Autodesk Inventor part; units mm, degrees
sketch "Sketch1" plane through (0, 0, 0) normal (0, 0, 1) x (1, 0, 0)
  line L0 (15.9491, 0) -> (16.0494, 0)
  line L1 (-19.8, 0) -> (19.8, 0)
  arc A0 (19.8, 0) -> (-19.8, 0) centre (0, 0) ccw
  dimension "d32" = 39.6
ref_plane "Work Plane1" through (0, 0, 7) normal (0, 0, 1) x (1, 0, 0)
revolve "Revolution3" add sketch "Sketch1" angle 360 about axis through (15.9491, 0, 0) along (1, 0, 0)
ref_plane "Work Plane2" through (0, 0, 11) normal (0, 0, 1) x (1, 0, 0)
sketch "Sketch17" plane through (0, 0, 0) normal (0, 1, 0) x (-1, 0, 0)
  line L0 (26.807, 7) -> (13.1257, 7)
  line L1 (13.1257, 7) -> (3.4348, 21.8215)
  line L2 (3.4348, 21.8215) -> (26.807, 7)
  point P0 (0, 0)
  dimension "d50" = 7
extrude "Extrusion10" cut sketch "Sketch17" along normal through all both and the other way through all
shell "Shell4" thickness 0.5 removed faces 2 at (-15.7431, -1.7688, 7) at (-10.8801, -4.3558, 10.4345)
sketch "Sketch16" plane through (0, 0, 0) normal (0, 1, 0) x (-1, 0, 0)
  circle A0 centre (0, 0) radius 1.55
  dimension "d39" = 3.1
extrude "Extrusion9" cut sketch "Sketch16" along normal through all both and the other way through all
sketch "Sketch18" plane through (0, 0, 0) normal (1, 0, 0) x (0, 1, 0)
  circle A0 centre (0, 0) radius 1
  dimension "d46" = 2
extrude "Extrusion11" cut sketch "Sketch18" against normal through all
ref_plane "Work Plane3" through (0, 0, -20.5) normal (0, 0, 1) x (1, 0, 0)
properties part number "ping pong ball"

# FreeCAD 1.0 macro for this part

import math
import FreeCAD as App
import Part
import Sketcher
Q = App.Units.Quantity


def faces_at(feature, points):
    """Names of the faces that lie closest to the given points."""
    faces = feature.Shape.Faces
    near = lambda p: min(range(len(faces)), key=lambda i: faces[i].distToShape(Part.Vertex(*p))[0])
    return sorted({f"Face{near(p) + 1}" for p in points})


def add_polygon(sketch, points):
    """Adds a closed chain of lines whose ends are joined by coincident constraints."""
    first, n = sketch.GeometryCount, len(points)
    for a, b in zip(points, points[1:] + points[:1]):
        sketch.addGeometry(Part.LineSegment(App.Vector(*a, 0), App.Vector(*b, 0)), False)
    for i in range(n):
        sketch.addConstraint(Sketcher.Constraint("Coincident", first + i, 2, first + (i + 1) % n, 1))

doc = App.newDocument("Part")
body = doc.addObject("PartDesign::Body", "Body")

# Sketch on XY plane
sketch1 = doc.addObject("Sketcher::SketchObject", "Sketch")
body.addObject(sketch1)
sketch1.AttachmentSupport = (doc.XY_Plane, [""])
sketch1.MapMode = "FlatFace"
sketch1.addGeometry([
    Part.LineSegment(App.Vector(-20, 0, 0), App.Vector(20, 0, 0)),
    Part.ArcOfCircle(Part.Circle(App.Vector(0, 0, 0), App.Vector(0, 0, 1), 20), math.radians(0), math.radians(180)),
], False)
sketch1.addConstraint([
    Sketcher.Constraint("Coincident", 0, 1, 1, 2),
    Sketcher.Constraint("Coincident", 1, 1, 0, 2),
    Sketcher.Constraint("Horizontal", 0),
    Sketcher.Constraint("Coincident", 1, 3, -1, 1),
    Sketcher.Constraint("PointOnObject", 0, 1, -1),
    Sketcher.Constraint("Radius", 1, Q("19.8 mm")),
])
revolution = doc.addObject("PartDesign::Revolution", "Revolution")
body.addObject(revolution)
revolution.Profile = sketch1
revolution.ReferenceAxis = (sketch1, ["H_Axis"])
revolution.Angle = 360

# Sketch on XZ plane
sketch2 = doc.addObject("Sketcher::SketchObject", "Sketch001")
body.addObject(sketch2)
sketch2.AttachmentSupport = (doc.XZ_Plane, [""])
sketch2.MapMode = "FlatFace"
add_polygon(sketch2, [(-13, 7), (-27, 7), (-3, 22)])  # lines 0-2
sketch2.addConstraint([
    Sketcher.Constraint("Horizontal", 0),
    Sketcher.Constraint("DistanceY", -1, 1, 0, 2, Q("7 mm")),
    Sketcher.Constraint("Angle", 1, Q("32.3809 deg")),
    Sketcher.Constraint("DistanceX", 0, 2, 0, 1, Q("13.6813 mm")),
    Sketcher.Constraint("DistanceX", 0, 2, -1, 1, Q("26.807 mm")),
    Sketcher.Constraint("DistanceX", 2, 2, 1, 2, Q("9.691 mm")),
])
pocket1 = doc.addObject("PartDesign::Pocket", "Pocket")
body.addObject(pocket1)
pocket1.Profile = sketch2
pocket1.Type = "ThroughAll"
pocket1.Midplane = True
doc.recompute()

thickness = doc.addObject("PartDesign::Thickness", "Thickness")
body.addObject(thickness)
thickness.Base = (pocket1, faces_at(pocket1, [(-15.743, -1.769, 7), (-10.88, -4.356, 10.434)]))
thickness.Value = 0.5
thickness.Reversed = True
thickness.Join = "Intersection"

# Sketch on XZ plane
sketch3 = doc.addObject("Sketcher::SketchObject", "Sketch002")
body.addObject(sketch3)
sketch3.AttachmentSupport = (doc.XZ_Plane, [""])
sketch3.MapMode = "FlatFace"
sketch3.addGeometry(Part.Circle(App.Vector(0, 0, 0), App.Vector(0, 0, 1), 1.6), False)
sketch3.addConstraint([
    Sketcher.Constraint("Coincident", 0, 3, -1, 1),
    Sketcher.Constraint("Diameter", 0, Q("3.1 mm")),
])
pocket2 = doc.addObject("PartDesign::Pocket", "Pocket001")
body.addObject(pocket2)
pocket2.Profile = sketch3
pocket2.Type = "ThroughAll"
pocket2.Midplane = True

# Sketch on YZ plane
sketch4 = doc.addObject("Sketcher::SketchObject", "Sketch003")
body.addObject(sketch4)
sketch4.AttachmentSupport = (doc.YZ_Plane, [""])
sketch4.MapMode = "FlatFace"
sketch4.addGeometry(Part.Circle(App.Vector(0, 0, 0), App.Vector(0, 0, 1), 1), False)
sketch4.addConstraint([
    Sketcher.Constraint("Coincident", 0, 3, -1, 1),
    Sketcher.Constraint("Diameter", 0, Q("2 mm")),
])
pocket3 = doc.addObject("PartDesign::Pocket", "Pocket002")
body.addObject(pocket3)
pocket3.Profile = sketch4
pocket3.Type = "ThroughAll"

doc.recompute()
